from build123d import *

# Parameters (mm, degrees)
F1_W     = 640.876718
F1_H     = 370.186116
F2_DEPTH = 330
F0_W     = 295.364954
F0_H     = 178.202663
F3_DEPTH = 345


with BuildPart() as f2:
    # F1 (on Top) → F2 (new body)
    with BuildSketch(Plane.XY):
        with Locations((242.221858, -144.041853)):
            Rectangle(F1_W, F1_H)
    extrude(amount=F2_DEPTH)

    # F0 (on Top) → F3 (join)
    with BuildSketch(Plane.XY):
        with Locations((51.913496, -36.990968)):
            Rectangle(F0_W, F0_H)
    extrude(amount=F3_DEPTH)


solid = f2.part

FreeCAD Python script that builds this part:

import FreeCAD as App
import Part
import Sketcher

V = App.Vector

doc = App.newDocument("Part")
params = doc.addObject("Spreadsheet::Sheet", "Params")
for row, (alias, value) in enumerate([
    ("pad1_length", "330 mm"),
    ("pad2_length", "345 mm"),
], start=1):
    params.set(f"A{row}", alias)
    params.set(f"B{row}", "=" + value)
    params.setAlias(f"B{row}", alias)

body = doc.addObject("PartDesign::Body", "Body")

# Sketch on XY plane
sketch1 = body.newObject("Sketcher::SketchObject", "Sketch")
sketch1.AttachmentSupport = (doc.getObject("XY_Plane"), [""])
sketch1.MapMode = "FlatFace"
sketch1.addGeometry(Part.LineSegment(V(-78, 41, 0), V(-78, -329, 0)), False)
sketch1.addGeometry(Part.LineSegment(V(-78, -329, 0), V(563, -329, 0)), False)
sketch1.addGeometry(Part.LineSegment(V(563, -329, 0), V(563, 41, 0)), False)
sketch1.addGeometry(Part.LineSegment(V(563, 41, 0), V(-78, 41, 0)), False)
sketch1.addConstraint(Sketcher.Constraint("Coincident", 0, 2, 1, 1))
sketch1.addConstraint(Sketcher.Constraint("Coincident", 1, 2, 2, 1))
sketch1.addConstraint(Sketcher.Constraint("Coincident", 2, 2, 3, 1))
sketch1.addConstraint(Sketcher.Constraint("Coincident", 3, 2, 0, 1))
sketch1.addConstraint(Sketcher.Constraint("Vertical", 0))
sketch1.addConstraint(Sketcher.Constraint("Horizontal", 1))
sketch1.addConstraint(Sketcher.Constraint("Vertical", 2))
sketch1.addConstraint(Sketcher.Constraint("Horizontal", 3))
sketch1.addConstraint(Sketcher.Constraint("DistanceX", 1, 1, 1, 2, 640.876718))
sketch1.addConstraint(Sketcher.Constraint("DistanceX", 0, 2, -1, 1, 78.216501))
sketch1.addConstraint(Sketcher.Constraint("DistanceY", 0, 2, 0, 1, 370.186116))
sketch1.addConstraint(Sketcher.Constraint("DistanceY", 0, 2, -1, 1, 329.134911))
pad1 = body.newObject("PartDesign::Pad", "Pad")
pad1.Profile = sketch1
pad1.setExpression("Length", "Params.pad1_length")

# Sketch on XY plane
sketch2 = body.newObject("Sketcher::SketchObject", "Sketch001")
sketch2.AttachmentSupport = (doc.getObject("XY_Plane"), [""])
sketch2.MapMode = "FlatFace"
sketch2.addGeometry(Part.LineSegment(V(-96, 52, 0), V(-96, -126, 0)), False)
sketch2.addGeometry(Part.LineSegment(V(-96, -126, 0), V(200, -126, 0)), False)
sketch2.addGeometry(Part.LineSegment(V(200, -126, 0), V(200, 52, 0)), False)
sketch2.addGeometry(Part.LineSegment(V(200, 52, 0), V(-96, 52, 0)), False)
sketch2.addConstraint(Sketcher.Constraint("Coincident", 0, 2, 1, 1))
sketch2.addConstraint(Sketcher.Constraint("Coincident", 1, 2, 2, 1))
sketch2.addConstraint(Sketcher.Constraint("Coincident", 2, 2, 3, 1))
sketch2.addConstraint(Sketcher.Constraint("Coincident", 3, 2, 0, 1))
sketch2.addConstraint(Sketcher.Constraint("Vertical", 0))
sketch2.addConstraint(Sketcher.Constraint("Horizontal", 1))
sketch2.addConstraint(Sketcher.Constraint("Vertical", 2))
sketch2.addConstraint(Sketcher.Constraint("Horizontal", 3))
sketch2.addConstraint(Sketcher.Constraint("DistanceY", 0, 2, -1, 1, 126.092299))
sketch2.addConstraint(Sketcher.Constraint("DistanceX", 1, 1, 1, 2, 295.364954))
sketch2.addConstraint(Sketcher.Constraint("DistanceY", 0, 2, 0, 1, 178.202663))
sketch2.addConstraint(Sketcher.Constraint("DistanceX", 0, 2, -1, 1, 95.768981))
pad2 = body.newObject("PartDesign::Pad", "Pad001")
pad2.Profile = sketch2
pad2.setExpression("Length", "Params.pad2_length")

doc.recompute()
